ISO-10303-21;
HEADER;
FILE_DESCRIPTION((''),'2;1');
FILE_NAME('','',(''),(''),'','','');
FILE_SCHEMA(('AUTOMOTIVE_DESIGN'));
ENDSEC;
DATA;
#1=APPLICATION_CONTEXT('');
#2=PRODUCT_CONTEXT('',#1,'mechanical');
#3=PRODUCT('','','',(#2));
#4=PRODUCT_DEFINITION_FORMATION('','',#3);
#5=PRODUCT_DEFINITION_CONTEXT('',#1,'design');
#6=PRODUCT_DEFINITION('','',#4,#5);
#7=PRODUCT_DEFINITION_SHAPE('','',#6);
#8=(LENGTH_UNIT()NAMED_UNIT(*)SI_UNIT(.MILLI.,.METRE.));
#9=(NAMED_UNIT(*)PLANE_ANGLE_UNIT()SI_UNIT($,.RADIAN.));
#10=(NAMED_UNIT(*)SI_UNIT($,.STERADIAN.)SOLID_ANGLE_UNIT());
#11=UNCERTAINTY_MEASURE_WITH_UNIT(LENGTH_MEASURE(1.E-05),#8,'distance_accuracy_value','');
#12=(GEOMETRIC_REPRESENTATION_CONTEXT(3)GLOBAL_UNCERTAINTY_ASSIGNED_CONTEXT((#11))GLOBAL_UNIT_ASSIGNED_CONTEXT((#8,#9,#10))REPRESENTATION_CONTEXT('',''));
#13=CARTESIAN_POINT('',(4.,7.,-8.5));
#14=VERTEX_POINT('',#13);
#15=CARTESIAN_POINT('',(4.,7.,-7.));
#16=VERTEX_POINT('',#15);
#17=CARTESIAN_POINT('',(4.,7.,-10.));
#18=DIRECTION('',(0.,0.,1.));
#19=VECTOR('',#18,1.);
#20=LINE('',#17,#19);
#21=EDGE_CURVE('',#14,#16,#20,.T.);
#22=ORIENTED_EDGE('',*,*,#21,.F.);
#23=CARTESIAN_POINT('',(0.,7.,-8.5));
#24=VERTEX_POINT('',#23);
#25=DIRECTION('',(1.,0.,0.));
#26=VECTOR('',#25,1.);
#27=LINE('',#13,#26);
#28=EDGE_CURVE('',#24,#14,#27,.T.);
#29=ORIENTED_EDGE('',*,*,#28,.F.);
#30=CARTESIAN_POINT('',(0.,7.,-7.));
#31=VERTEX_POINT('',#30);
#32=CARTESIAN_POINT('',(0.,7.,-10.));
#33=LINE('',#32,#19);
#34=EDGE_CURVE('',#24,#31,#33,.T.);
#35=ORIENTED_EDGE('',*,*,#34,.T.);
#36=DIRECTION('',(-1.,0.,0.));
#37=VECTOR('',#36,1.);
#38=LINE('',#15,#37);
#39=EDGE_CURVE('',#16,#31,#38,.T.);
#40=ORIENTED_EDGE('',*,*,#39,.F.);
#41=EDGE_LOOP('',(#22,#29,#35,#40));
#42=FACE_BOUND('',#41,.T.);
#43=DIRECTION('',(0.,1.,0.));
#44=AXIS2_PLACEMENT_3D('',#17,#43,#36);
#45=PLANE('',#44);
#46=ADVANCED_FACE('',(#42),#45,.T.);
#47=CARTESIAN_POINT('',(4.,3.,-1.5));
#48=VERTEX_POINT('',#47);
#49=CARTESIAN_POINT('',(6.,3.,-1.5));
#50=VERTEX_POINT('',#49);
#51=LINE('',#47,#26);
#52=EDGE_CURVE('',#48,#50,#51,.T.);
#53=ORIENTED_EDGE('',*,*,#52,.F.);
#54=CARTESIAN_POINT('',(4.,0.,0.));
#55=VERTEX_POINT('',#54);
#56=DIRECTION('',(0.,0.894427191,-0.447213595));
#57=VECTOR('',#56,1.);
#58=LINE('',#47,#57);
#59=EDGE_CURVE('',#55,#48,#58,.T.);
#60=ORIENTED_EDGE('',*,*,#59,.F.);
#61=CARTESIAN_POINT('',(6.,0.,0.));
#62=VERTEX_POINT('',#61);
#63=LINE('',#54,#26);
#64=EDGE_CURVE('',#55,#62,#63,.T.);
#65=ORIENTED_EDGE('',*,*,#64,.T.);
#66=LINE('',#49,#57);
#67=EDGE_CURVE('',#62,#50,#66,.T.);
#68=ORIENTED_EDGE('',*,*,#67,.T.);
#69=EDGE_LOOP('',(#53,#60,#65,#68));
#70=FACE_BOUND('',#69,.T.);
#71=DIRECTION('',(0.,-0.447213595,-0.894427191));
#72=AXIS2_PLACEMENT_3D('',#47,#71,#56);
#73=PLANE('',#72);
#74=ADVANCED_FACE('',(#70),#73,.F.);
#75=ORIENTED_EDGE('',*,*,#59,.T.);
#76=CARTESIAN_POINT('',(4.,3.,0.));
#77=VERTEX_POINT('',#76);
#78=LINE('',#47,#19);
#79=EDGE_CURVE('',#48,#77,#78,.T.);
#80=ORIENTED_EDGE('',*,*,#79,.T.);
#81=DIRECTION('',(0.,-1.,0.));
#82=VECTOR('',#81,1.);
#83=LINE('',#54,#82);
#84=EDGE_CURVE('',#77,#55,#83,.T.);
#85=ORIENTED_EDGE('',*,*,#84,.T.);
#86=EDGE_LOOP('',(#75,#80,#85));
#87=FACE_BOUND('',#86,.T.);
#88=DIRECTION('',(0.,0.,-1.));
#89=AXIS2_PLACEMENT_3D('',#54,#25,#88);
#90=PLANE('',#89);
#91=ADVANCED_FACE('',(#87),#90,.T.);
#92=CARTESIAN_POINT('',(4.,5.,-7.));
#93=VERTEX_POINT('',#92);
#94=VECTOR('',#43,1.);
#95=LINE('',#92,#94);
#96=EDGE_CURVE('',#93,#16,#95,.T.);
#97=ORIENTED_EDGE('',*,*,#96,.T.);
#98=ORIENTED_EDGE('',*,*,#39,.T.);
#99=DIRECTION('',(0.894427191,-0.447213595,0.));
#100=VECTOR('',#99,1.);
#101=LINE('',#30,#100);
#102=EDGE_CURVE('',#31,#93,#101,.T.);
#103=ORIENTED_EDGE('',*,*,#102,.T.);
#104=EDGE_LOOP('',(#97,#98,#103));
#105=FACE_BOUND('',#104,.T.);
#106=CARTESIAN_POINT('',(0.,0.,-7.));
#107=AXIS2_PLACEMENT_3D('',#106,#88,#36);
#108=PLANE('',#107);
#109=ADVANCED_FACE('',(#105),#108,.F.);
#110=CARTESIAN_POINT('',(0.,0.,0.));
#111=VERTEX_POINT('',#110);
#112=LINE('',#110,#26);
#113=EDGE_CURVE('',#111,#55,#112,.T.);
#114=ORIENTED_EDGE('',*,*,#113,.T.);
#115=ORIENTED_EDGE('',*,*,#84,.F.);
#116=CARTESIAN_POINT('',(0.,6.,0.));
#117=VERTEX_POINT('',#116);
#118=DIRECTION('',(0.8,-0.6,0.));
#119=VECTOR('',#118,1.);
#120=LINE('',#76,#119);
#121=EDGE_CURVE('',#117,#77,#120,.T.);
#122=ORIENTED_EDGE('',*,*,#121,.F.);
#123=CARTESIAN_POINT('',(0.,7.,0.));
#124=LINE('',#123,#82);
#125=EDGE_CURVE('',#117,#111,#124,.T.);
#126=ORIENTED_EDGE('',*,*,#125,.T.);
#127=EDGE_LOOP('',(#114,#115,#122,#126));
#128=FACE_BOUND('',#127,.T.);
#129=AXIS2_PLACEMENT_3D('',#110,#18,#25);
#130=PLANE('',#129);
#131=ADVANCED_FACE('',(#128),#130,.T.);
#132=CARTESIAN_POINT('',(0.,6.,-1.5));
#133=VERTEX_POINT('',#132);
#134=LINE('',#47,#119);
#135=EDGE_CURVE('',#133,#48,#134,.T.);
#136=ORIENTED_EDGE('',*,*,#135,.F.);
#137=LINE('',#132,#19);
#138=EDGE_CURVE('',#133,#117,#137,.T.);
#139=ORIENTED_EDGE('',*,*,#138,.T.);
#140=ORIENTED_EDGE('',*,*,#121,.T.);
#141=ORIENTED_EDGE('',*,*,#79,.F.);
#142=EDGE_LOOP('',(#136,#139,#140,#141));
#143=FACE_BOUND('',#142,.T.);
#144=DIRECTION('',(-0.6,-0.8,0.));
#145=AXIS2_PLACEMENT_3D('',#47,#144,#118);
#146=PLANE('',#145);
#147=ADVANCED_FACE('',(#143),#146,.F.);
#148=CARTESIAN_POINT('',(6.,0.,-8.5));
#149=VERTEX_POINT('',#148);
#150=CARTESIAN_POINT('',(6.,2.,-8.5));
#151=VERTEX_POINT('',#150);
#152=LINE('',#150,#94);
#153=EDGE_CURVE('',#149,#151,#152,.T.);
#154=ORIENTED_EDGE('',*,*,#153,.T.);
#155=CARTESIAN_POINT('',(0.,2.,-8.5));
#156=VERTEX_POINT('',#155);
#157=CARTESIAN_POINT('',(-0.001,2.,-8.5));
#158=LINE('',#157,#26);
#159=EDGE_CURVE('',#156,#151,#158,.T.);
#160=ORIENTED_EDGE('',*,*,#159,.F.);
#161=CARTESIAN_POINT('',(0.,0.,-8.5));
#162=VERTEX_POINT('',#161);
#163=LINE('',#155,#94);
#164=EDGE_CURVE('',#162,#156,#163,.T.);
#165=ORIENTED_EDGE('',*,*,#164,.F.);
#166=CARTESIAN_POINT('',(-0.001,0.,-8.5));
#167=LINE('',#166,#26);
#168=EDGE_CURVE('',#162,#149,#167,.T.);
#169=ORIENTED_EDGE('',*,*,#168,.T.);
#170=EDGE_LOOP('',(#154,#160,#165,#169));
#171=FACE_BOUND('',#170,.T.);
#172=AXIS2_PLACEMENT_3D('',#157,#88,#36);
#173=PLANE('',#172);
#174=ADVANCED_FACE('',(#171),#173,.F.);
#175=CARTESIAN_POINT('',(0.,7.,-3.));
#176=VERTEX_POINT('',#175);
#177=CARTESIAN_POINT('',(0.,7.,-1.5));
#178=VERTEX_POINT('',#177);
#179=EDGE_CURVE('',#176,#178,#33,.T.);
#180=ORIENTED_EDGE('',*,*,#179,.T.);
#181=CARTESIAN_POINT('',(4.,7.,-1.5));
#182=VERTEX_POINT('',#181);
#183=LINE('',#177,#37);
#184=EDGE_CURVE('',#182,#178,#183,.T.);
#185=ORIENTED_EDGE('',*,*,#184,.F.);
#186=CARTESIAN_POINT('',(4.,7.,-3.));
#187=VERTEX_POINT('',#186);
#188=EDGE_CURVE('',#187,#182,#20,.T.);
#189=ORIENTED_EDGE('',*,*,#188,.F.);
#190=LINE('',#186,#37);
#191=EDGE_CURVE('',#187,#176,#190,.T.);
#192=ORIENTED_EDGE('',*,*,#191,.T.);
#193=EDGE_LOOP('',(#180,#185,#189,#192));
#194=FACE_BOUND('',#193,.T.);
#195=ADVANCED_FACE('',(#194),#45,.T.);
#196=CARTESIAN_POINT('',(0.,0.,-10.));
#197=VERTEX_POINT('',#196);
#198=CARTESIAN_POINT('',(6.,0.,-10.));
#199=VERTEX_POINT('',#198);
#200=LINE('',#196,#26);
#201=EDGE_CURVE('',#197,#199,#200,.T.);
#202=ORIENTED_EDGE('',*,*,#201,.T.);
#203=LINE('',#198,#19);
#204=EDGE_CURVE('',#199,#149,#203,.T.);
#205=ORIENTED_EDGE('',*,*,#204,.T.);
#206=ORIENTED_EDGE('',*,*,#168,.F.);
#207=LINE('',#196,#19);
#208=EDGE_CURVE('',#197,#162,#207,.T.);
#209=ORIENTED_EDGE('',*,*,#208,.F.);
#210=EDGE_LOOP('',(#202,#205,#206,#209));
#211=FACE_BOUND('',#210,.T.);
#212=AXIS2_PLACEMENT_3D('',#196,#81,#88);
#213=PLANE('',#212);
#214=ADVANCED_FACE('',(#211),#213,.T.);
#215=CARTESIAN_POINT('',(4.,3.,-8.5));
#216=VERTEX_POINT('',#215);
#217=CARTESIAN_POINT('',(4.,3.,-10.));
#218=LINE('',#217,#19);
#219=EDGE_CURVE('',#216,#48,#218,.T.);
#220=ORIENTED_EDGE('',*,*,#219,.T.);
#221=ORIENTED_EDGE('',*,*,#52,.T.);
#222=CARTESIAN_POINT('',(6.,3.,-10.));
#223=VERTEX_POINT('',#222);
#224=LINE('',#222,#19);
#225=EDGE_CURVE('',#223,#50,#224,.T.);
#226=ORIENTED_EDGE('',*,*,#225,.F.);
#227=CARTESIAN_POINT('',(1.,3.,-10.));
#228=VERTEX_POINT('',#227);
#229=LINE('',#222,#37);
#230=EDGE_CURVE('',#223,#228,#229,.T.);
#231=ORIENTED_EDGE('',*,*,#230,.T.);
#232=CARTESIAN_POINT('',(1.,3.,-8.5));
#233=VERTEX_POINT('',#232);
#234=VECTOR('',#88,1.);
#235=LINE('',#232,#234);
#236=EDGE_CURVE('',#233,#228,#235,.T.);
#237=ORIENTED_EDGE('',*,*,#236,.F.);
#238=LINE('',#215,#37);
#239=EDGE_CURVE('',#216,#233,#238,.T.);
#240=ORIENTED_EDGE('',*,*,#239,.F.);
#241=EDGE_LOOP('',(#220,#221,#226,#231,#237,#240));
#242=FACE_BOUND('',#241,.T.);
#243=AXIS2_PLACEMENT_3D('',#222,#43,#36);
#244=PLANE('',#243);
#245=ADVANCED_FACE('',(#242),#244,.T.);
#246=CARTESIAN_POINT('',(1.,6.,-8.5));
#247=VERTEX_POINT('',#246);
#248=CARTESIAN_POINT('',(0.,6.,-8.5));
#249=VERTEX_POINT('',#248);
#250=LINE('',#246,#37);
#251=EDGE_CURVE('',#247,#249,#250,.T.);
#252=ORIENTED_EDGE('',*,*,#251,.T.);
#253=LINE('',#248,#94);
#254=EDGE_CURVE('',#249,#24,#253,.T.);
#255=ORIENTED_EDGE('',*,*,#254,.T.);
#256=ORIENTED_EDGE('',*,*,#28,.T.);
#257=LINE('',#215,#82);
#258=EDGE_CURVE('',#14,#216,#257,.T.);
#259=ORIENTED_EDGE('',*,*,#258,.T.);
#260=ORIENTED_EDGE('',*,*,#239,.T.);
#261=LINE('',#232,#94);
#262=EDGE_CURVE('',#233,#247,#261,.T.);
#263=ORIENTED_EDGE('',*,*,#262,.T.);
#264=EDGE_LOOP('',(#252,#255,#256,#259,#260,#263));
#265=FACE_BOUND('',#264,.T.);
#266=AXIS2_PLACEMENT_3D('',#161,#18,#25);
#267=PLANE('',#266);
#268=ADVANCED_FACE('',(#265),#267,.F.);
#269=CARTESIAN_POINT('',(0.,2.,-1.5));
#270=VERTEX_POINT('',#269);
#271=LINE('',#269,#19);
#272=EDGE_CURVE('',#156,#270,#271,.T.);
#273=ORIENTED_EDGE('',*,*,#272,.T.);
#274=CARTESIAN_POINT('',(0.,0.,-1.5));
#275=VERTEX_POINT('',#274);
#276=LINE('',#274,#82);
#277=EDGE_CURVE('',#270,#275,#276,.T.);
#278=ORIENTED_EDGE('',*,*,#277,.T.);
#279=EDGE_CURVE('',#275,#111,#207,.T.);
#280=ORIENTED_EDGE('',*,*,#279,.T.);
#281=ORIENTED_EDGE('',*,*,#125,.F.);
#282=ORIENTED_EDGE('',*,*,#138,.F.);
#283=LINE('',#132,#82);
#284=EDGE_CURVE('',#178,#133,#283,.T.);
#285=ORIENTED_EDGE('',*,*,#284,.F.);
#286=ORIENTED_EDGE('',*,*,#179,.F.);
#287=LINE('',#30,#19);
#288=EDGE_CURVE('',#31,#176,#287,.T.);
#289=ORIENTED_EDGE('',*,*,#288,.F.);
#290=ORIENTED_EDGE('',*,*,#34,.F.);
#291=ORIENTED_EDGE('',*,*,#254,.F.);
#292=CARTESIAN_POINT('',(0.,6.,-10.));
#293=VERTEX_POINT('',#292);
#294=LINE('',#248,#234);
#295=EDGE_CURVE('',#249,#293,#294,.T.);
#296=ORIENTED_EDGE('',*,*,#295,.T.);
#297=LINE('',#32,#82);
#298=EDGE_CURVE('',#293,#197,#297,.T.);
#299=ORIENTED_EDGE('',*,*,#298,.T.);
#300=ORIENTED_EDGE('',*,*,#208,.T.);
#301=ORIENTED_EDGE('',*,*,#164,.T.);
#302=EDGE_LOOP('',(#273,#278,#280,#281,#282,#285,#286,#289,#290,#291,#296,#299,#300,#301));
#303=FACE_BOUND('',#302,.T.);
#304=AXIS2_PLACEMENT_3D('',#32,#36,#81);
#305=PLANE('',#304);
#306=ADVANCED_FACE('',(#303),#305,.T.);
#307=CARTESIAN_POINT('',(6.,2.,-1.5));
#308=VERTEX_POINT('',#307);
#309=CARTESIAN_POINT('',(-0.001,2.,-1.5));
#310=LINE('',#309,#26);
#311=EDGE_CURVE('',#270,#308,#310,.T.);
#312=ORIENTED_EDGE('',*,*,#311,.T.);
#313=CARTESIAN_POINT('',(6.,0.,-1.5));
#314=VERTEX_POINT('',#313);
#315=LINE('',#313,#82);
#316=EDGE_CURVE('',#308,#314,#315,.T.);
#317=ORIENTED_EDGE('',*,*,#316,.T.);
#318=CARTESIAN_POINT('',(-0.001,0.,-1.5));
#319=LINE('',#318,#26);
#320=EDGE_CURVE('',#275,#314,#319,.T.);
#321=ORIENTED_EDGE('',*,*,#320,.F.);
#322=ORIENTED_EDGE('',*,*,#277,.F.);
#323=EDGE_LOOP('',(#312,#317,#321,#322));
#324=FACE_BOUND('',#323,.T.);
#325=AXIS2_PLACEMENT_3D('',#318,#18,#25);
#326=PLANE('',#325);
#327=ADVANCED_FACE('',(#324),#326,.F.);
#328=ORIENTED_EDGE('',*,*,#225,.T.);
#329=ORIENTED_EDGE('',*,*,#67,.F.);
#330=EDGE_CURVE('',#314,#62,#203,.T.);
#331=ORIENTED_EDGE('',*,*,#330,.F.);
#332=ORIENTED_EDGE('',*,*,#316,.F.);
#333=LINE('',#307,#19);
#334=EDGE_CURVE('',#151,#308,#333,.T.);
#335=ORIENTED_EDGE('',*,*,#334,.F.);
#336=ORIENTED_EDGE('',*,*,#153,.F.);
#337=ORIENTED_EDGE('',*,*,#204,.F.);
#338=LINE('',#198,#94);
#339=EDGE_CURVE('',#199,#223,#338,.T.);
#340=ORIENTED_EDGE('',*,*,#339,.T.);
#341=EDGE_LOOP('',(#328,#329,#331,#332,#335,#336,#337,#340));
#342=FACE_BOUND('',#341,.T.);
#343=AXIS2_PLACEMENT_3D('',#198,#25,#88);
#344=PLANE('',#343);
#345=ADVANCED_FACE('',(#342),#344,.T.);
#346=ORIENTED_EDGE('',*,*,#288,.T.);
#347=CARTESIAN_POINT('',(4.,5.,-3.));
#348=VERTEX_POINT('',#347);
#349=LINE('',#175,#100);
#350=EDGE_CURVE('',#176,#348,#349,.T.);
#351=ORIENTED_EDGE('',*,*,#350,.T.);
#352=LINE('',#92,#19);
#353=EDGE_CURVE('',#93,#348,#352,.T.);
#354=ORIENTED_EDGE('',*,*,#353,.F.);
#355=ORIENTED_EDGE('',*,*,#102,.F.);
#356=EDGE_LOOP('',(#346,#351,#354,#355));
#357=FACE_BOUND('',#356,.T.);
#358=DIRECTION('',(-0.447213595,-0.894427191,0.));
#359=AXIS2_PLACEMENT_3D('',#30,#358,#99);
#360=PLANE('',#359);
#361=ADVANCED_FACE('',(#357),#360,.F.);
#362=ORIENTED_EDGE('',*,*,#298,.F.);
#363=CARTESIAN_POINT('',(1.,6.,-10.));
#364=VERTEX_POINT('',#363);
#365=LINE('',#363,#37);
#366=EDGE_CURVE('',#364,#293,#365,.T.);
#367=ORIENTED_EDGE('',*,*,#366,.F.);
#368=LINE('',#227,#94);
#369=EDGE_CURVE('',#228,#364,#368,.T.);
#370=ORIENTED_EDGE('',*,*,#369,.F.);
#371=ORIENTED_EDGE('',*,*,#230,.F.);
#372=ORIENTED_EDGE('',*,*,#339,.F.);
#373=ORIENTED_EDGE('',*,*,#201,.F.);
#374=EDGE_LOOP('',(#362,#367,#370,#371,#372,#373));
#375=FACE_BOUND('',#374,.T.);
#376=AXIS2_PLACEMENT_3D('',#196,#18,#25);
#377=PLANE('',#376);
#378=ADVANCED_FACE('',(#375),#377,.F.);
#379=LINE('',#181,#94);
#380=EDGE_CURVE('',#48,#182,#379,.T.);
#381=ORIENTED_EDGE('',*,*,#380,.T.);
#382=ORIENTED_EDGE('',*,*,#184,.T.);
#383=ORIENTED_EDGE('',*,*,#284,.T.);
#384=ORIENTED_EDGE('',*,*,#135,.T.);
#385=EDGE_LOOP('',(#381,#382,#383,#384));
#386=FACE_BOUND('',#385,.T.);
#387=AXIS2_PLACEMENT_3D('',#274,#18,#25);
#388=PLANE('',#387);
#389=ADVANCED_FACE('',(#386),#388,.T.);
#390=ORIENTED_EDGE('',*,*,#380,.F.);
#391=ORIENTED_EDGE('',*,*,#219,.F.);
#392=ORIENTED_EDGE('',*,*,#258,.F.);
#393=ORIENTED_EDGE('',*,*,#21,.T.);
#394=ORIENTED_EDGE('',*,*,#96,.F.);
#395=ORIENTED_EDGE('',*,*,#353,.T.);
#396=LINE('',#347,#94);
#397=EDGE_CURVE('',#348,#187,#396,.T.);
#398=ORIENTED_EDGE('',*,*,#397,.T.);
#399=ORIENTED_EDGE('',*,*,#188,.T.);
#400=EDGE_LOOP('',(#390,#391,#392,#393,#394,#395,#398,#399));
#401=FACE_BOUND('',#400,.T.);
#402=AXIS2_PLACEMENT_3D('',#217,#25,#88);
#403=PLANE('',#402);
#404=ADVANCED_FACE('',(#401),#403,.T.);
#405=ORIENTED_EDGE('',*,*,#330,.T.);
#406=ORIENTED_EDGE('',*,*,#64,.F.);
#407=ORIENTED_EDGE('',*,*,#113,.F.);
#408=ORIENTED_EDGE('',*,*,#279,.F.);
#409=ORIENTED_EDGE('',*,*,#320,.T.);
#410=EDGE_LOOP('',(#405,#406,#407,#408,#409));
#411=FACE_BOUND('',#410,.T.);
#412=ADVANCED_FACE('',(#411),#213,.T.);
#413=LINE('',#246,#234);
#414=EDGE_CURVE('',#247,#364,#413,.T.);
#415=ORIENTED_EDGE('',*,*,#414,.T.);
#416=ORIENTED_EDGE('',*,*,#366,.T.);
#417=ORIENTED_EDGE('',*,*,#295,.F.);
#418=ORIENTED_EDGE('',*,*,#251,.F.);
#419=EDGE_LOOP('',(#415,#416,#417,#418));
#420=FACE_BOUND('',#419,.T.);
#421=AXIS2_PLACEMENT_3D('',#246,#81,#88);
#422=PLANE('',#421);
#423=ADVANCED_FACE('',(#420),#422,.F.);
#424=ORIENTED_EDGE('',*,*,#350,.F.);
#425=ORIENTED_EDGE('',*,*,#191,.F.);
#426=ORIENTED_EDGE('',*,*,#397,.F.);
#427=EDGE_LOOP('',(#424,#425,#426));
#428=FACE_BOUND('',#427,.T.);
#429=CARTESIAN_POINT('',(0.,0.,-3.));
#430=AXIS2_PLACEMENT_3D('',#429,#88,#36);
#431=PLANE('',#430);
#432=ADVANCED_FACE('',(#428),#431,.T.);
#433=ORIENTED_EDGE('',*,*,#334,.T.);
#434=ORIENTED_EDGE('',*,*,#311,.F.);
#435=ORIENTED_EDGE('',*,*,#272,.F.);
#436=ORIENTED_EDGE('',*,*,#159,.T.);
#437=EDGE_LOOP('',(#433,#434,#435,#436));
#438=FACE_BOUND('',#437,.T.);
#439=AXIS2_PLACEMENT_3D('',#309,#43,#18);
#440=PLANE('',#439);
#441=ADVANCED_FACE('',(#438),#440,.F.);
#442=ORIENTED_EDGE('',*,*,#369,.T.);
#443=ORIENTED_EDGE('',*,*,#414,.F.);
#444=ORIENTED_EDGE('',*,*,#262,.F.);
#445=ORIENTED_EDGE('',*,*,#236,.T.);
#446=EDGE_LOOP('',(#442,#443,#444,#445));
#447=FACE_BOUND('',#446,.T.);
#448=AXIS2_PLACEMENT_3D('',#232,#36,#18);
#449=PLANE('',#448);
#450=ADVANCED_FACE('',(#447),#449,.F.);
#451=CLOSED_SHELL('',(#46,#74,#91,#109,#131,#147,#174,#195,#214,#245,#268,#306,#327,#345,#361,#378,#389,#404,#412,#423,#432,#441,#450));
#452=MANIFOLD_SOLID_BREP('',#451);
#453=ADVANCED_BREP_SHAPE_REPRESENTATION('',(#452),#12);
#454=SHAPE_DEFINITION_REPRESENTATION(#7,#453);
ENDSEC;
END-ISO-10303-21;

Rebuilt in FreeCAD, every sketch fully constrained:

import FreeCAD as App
import Part
import Sketcher

V = App.Vector


def add_polygon(sketch, points):
    """Adds a closed chain of lines whose ends are joined by coincident constraints."""
    first, n = sketch.GeometryCount, len(points)
    for a, b in zip(points, points[1:] + points[:1]):
        sketch.addGeometry(Part.LineSegment(App.Vector(*a, 0), App.Vector(*b, 0)), False)
    for i in range(n):
        sketch.addConstraint(Sketcher.Constraint("Coincident", first + i, 2, first + (i + 1) % n, 1))

doc = App.newDocument("Part")
body = doc.addObject("PartDesign::Body", "Body")

sketch1 = body.newObject("Sketcher::SketchObject", "Sketch")
sketch1.AttachmentSupport = (doc.getObject("XY_Plane"), [""])
sketch1.MapMode = "FlatFace"
add_polygon(sketch1, [(0, 0), (6, 0), (6, 3), (4, 3), (4, 7), (0, 7)])
sketch1.addConstraint([
    Sketcher.Constraint("Horizontal", 0),
    Sketcher.Constraint("Vertical", 1),
    Sketcher.Constraint("Horizontal", 2),
    Sketcher.Constraint("Vertical", 3),
    Sketcher.Constraint("Horizontal", 4),
    Sketcher.Constraint("Vertical", 5),
    Sketcher.Constraint("Coincident", 5, 2, -1, 1),
    Sketcher.Constraint("Equal", 4, 3),
    Sketcher.Constraint("DistanceX", 0, 1, 0, 2, 6.0),
    Sketcher.Constraint("DistanceX", 2, 2, 2, 1, 2.0),
    Sketcher.Constraint("DistanceY", 1, 1, 1, 2, 3.0),
])
pad1 = body.newObject("PartDesign::Pad", "Pad")
pad1.Profile = sketch1
pad1.Length = 10
pad1.Reversed = True

sketch2 = body.newObject("Sketcher::SketchObject", "Sketch001")
sketch2.AttachmentSupport = (doc.getObject("XY_Plane"), [""])
sketch2.MapMode = "FlatFace"
add_polygon(sketch2, [(0, 6), (4, 3), (4, 7), (0, 7)])
sketch2.addConstraint([
    Sketcher.Constraint("Vertical", 1),
    Sketcher.Constraint("Horizontal", 2),
    Sketcher.Constraint("Vertical", 3),
    Sketcher.Constraint("PointOnObject", 2, 2, -2),
    Sketcher.Constraint("Equal", 2, 1),
    Sketcher.Constraint("DistanceX", 2, 2, 2, 1, 4.0),
    Sketcher.Constraint("DistanceY", 3, 2, 3, 1, 1.0),
    Sketcher.Constraint("DistanceY", -1, 1, 0, 2, 3.0),
])
pocket1 = body.newObject("PartDesign::Pocket", "Pocket")
pocket1.Profile = sketch2
pocket1.Length = 1.5

sketch3 = body.newObject("Sketcher::SketchObject", "Sketch002")
sketch3.AttachmentSupport = (doc.getObject("YZ_Plane"), [""])
sketch3.MapMode = "FlatFace"
sketch3.AttachmentOffset = App.Placement(V(0, 0, 6), App.Rotation())
add_polygon(sketch3, [(0, 0), (3, -1.5), (3, 0)])
sketch3.addConstraint([
    Sketcher.Constraint("Vertical", 1),
    Sketcher.Constraint("Horizontal", 2),
    Sketcher.Constraint("Coincident", 2, 2, -1, 1),
    Sketcher.Constraint("DistanceX", 2, 2, 2, 1, 3.0),
    Sketcher.Constraint("DistanceY", 1, 1, 1, 2, 1.5),
])
pocket2 = body.newObject("PartDesign::Pocket", "Pocket001")
pocket2.Profile = sketch3
pocket2.Length = 2

sketch4 = body.newObject("Sketcher::SketchObject", "Sketch003")
sketch4.AttachmentSupport = (doc.getObject("YZ_Plane"), [""])
sketch4.MapMode = "FlatFace"
sketch4.AttachmentOffset = App.Placement(V(0, 0, 6), App.Rotation())
add_polygon(sketch4, [(2, -1.5), (0, -1.5), (0, -8.5), (2, -8.5)])
sketch4.addConstraint([
    Sketcher.Constraint("Horizontal", 0),
    Sketcher.Constraint("Vertical", 1),
    Sketcher.Constraint("Horizontal", 2),
    Sketcher.Constraint("Vertical", 3),
    Sketcher.Constraint("PointOnObject", 0, 2, -2),
    Sketcher.Constraint("DistanceX", 0, 2, 0, 1, 2.0),
    Sketcher.Constraint("DistanceY", 1, 2, 1, 1, 7.0),
    Sketcher.Constraint("DistanceY", 0, 2, -1, 1, 1.5),
])
pocket3 = body.newObject("PartDesign::Pocket", "Pocket002")
pocket3.Profile = sketch4
pocket3.Type = "UpToFirst"

sketch5 = body.newObject("Sketcher::SketchObject", "Sketch004")
sketch5.AttachmentSupport = (doc.getObject("XY_Plane"), [""])
sketch5.MapMode = "FlatFace"
sketch5.AttachmentOffset = App.Placement(V(0, 0, -10), App.Rotation())
add_polygon(sketch5, [(0, 7), (4, 7), (4, 3), (1, 3), (1, 6), (0, 6)])
sketch5.addConstraint([
    Sketcher.Constraint("Horizontal", 0),
    Sketcher.Constraint("Vertical", 1),
    Sketcher.Constraint("Horizontal", 2),
    Sketcher.Constraint("Vertical", 3),
    Sketcher.Constraint("Horizontal", 4),
    Sketcher.Constraint("Vertical", 5),
    Sketcher.Constraint("PointOnObject", 4, 2, -2),
    Sketcher.Constraint("Equal", 0, 1),
    Sketcher.Constraint("Equal", 2, 3),
    Sketcher.Constraint("DistanceX", 0, 1, 0, 2, 4.0),
    Sketcher.Constraint("DistanceX", 2, 2, 2, 1, 3.0),
    Sketcher.Constraint("DistanceY", -1, 1, 0, 2, 7.0),
])
pocket4 = body.newObject("PartDesign::Pocket", "Pocket003")
pocket4.Profile = sketch5
pocket4.Length = 1.5
pocket4.Reversed = True

sketch6 = body.newObject("Sketcher::SketchObject", "Sketch005")
sketch6.AttachmentSupport = (doc.getObject("XY_Plane"), [""])
sketch6.MapMode = "FlatFace"
sketch6.AttachmentOffset = App.Placement(V(0, 0, -5), App.Rotation())
add_polygon(sketch6, [(4, 5), (4, 7), (0, 7)])
sketch6.addConstraint([
    Sketcher.Constraint("Vertical", 0),
    Sketcher.Constraint("Horizontal", 1),
    Sketcher.Constraint("PointOnObject", 1, 2, -2),
    Sketcher.Constraint("DistanceX", 1, 2, 1, 1, 4.0),
    Sketcher.Constraint("DistanceY", 0, 1, 0, 2, 2.0),
    Sketcher.Constraint("DistanceY", -1, 1, 0, 2, 7.0),
])
pocket5 = body.newObject("PartDesign::Pocket", "Pocket004")
pocket5.Profile = sketch6
pocket5.Length = 4
pocket5.Midplane = True

doc.recompute()
